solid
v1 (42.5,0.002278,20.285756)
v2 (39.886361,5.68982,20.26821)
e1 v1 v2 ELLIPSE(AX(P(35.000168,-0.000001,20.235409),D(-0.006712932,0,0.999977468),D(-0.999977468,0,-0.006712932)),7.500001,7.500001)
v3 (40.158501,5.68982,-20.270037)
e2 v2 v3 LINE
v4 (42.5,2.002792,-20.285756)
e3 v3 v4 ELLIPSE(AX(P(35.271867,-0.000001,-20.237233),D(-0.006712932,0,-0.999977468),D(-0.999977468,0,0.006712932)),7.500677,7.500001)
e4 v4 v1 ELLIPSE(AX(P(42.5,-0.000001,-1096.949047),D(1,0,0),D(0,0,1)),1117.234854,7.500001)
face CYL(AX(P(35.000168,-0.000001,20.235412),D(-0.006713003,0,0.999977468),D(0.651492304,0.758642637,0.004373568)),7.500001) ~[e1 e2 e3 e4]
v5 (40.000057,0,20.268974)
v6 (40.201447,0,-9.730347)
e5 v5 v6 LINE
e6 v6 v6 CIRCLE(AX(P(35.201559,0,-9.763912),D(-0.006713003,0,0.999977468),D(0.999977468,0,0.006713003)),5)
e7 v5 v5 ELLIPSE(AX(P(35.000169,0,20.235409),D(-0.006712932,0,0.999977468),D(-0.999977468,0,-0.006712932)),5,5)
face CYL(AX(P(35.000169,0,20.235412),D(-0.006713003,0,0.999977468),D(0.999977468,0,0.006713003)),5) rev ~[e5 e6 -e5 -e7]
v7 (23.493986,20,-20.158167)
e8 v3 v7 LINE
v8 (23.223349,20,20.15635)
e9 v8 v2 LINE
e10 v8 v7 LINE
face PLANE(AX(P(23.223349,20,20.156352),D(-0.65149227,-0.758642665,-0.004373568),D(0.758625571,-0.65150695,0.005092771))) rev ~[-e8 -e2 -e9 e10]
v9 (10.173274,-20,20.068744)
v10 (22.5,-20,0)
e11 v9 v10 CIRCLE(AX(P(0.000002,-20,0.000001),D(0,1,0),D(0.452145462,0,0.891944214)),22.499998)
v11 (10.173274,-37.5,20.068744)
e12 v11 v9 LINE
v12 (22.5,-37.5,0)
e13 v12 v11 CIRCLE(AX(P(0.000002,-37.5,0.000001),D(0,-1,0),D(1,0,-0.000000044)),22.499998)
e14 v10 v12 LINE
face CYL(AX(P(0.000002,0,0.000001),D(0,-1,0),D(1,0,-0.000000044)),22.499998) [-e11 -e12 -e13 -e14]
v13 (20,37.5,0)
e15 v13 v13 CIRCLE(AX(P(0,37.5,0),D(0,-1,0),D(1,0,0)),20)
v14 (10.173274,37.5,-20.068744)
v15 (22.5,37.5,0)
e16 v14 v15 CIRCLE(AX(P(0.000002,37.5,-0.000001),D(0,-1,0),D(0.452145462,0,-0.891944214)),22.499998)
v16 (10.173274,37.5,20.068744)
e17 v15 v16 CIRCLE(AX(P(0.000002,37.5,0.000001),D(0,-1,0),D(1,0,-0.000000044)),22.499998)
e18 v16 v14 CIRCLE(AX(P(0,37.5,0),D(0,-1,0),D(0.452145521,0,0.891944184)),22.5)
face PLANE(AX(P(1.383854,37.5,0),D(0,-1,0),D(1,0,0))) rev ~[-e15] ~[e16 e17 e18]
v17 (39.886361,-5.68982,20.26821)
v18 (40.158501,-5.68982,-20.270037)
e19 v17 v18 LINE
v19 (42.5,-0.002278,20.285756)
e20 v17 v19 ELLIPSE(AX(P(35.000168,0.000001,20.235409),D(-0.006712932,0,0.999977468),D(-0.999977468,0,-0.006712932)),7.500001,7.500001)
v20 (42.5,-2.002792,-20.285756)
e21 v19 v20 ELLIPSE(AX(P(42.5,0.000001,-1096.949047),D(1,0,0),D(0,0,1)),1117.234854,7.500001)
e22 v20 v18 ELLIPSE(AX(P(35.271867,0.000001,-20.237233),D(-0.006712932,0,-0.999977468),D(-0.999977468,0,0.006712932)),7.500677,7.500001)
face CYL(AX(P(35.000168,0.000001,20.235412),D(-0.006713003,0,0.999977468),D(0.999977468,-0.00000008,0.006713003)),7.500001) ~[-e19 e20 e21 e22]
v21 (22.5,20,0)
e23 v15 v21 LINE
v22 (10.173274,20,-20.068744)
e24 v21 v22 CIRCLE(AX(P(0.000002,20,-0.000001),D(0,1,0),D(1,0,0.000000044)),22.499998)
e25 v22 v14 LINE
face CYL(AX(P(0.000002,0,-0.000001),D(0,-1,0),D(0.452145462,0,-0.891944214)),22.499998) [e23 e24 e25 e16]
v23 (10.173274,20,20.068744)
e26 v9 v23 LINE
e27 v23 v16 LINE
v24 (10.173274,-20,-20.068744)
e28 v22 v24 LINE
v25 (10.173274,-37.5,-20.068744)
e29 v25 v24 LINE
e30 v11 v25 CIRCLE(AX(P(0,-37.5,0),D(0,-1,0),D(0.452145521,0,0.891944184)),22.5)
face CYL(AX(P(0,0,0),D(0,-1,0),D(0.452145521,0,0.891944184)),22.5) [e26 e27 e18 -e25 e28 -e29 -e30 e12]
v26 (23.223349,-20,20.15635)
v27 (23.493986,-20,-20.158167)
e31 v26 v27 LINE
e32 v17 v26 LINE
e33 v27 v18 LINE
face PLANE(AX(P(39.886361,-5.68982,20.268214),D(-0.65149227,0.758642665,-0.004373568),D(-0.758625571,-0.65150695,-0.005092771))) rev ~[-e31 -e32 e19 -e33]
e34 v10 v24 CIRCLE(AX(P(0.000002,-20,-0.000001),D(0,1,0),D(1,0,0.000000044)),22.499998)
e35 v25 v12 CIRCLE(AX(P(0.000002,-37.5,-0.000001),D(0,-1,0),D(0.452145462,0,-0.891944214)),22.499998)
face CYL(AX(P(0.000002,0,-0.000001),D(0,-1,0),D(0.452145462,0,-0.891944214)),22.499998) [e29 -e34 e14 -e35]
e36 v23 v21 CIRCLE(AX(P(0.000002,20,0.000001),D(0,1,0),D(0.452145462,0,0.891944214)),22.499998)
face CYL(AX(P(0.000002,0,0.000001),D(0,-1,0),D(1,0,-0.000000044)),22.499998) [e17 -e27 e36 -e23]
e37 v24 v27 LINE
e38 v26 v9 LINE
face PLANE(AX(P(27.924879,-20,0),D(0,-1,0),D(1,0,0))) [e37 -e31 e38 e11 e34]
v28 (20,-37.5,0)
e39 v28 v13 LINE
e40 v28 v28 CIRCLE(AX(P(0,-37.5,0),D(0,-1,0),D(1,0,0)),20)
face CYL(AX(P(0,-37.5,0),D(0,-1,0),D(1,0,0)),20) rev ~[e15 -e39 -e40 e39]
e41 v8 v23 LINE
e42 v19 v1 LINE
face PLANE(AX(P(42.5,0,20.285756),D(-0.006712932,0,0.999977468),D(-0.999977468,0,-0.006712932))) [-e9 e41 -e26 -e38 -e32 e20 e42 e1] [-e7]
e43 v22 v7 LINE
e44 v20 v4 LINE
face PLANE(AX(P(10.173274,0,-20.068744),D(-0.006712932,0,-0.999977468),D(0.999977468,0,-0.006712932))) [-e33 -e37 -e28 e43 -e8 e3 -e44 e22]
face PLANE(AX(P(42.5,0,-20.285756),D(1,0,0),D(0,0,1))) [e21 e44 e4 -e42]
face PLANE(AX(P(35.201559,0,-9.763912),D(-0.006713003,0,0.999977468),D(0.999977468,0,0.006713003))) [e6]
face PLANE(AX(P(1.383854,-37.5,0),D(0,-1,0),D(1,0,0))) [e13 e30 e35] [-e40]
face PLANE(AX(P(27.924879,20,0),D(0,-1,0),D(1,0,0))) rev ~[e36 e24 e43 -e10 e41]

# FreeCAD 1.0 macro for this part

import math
import FreeCAD as App
import Part
import Sketcher
from FreeCAD import Vector
Q = App.Units.Quantity

doc = App.newDocument("Part")
body = doc.addObject("PartDesign::Body", "Body")

# Sketch on XZ plane
sketch1 = body.newObject("Sketcher::SketchObject", "Sketch")
sketch1.AttachmentSupport = (doc.getObject("XZ_Plane"), [""])
sketch1.MapMode = "FlatFace"
sketch1.addGeometry(Part.ArcOfCircle(Part.Circle(Vector(0, 0, 0), Vector(0, 0, 1), 22), math.radians(-63), math.radians(0)), False)
sketch1.addGeometry(Part.ArcOfCircle(Part.Circle(Vector(0, 0, 0), Vector(0, 0, 1), 22), math.radians(0), math.radians(63)), False)
sketch1.addGeometry(Part.ArcOfCircle(Part.Circle(Vector(0, 0, 0), Vector(0, 0, 1), 22), math.radians(63), math.radians(297)), False)
sketch1.addConstraint(Sketcher.Constraint("Tangent", 0, 2, 1, 1))
sketch1.addConstraint(Sketcher.Constraint("Tangent", 1, 2, 2, 1))
sketch1.addConstraint(Sketcher.Constraint("Tangent", 2, 2, 0, 1))
sketch1.addConstraint(Sketcher.Constraint("Coincident", 0, 3, -1, 1))
sketch1.addConstraint(Sketcher.Constraint("PointOnObject", 0, 2, -1))
sketch1.addConstraint(Sketcher.Constraint("Vertical", 1, 2, 2, 2))
sketch1.addConstraint(Sketcher.Constraint("Radius", 2, Q("22.5 mm")))
sketch1.addConstraint(Sketcher.Constraint("DistanceX", 1, 3, 1, 2, Q("10.173272 mm")))
pad1 = body.newObject("PartDesign::Pad", "Pad")
pad1.Profile = sketch1
pad1.Length = 75
pad1.Midplane = True

# Sketch on XZ plane
sketch2 = body.newObject("Sketcher::SketchObject", "Sketch001")
sketch2.AttachmentSupport = (doc.getObject("XZ_Plane"), [""])
sketch2.MapMode = "FlatFace"
sketch2.addGeometry(Part.ArcOfCircle(Part.Circle(Vector(0, 0, 0), Vector(0, 0, 1), 22), math.radians(0), math.radians(63)), False)
sketch2.addGeometry(Part.ArcOfCircle(Part.Circle(Vector(0, 0, 0), Vector(0, 0, 1), 22), math.radians(-63), math.radians(0)), False)
sketch2.addGeometry(Part.LineSegment(Vector(10, -20, 0), Vector(42, -20, 0)), False)
sketch2.addGeometry(Part.LineSegment(Vector(42, -20, 0), Vector(42, 20, 0)), False)
sketch2.addGeometry(Part.LineSegment(Vector(42, 20, 0), Vector(10, 20, 0)), False)
sketch2.addConstraint(Sketcher.Constraint("Tangent", 0, 1, 1, 2))
sketch2.addConstraint(Sketcher.Constraint("Coincident", 1, 1, 2, 1))
sketch2.addConstraint(Sketcher.Constraint("Coincident", 2, 2, 3, 1))
sketch2.addConstraint(Sketcher.Constraint("Coincident", 3, 2, 4, 1))
sketch2.addConstraint(Sketcher.Constraint("Coincident", 4, 2, 0, 2))
sketch2.addConstraint(Sketcher.Constraint("Vertical", 3))
sketch2.addConstraint(Sketcher.Constraint("Coincident", 0, 3, -1, 1))
sketch2.addConstraint(Sketcher.Constraint("Equal", 0, 1))
sketch2.addConstraint(Sketcher.Constraint("PointOnObject", 0, 1, -1))
sketch2.addConstraint(Sketcher.Constraint("Vertical", 1, 1, 4, 2))
sketch2.addConstraint(Sketcher.Constraint("Equal", 2, 4))
sketch2.addConstraint(Sketcher.Constraint("DistanceX", 0, 1, 2, 2, Q("20 mm")))
sketch2.addConstraint(Sketcher.Constraint("DistanceX", -1, 1, 0, 1, Q("22.5 mm")))
sketch2.addConstraint(Sketcher.Constraint("DistanceY", 3, 1, 3, 2, Q("40.571512 mm")))
sketch2.addConstraint(Sketcher.Constraint("DistanceY", 1, 1, 3, 2, Q("40.3545 mm")))
pad2 = body.newObject("PartDesign::Pad", "Pad001")
pad2.Profile = sketch2
pad2.Length = 40
pad2.Midplane = True

# Sketch on an angled plane
sketch3 = body.newObject("Sketcher::SketchObject", "Sketch002")
sketch3.Placement = App.Placement(Vector(-0.134258, 0, 19.999549), App.Rotation(Vector(0.999977468, 0, 0.006713003), Vector(0, 1.000000001, 0), Vector(-0.006713003, 0, 0.999977468), "ZXY"))
sketch3.addGeometry(Part.ArcOfCircle(Part.Circle(Vector(35, 0, 0), Vector(0, 0, 1), 8), math.radians(0), math.radians(49)), False)
sketch3.addGeometry(Part.LineSegment(Vector(43, 0, 0), Vector(43, 20, 0)), False)
sketch3.addGeometry(Part.LineSegment(Vector(43, 20, 0), Vector(23, 20, 0)), False)
sketch3.addGeometry(Part.LineSegment(Vector(23, 20, 0), Vector(40, 6, 0)), False)
sketch3.addGeometry(Part.LineSegment(Vector(43, -20, 0), Vector(43, 0, 0)), False)
sketch3.addGeometry(Part.ArcOfCircle(Part.Circle(Vector(35, 0, 0), Vector(0, 0, 1), 8), math.radians(-49), math.radians(0)), False)
sketch3.addGeometry(Part.LineSegment(Vector(40, -6, 0), Vector(23, -20, 0)), False)
sketch3.addGeometry(Part.LineSegment(Vector(23, -20, 0), Vector(43, -20, 0)), False)
sketch3.addConstraint(Sketcher.Constraint("Tangent", 0, 1, 1, 1))
sketch3.addConstraint(Sketcher.Constraint("Coincident", 1, 2, 2, 1))
sketch3.addConstraint(Sketcher.Constraint("Coincident", 2, 2, 3, 1))
sketch3.addConstraint(Sketcher.Constraint("Tangent", 3, 2, 0, 2))
sketch3.addConstraint(Sketcher.Constraint("Tangent", 4, 2, 5, 2))
sketch3.addConstraint(Sketcher.Constraint("Tangent", 5, 1, 6, 1))
sketch3.addConstraint(Sketcher.Constraint("Coincident", 6, 2, 7, 1))
sketch3.addConstraint(Sketcher.Constraint("Coincident", 7, 2, 4, 1))
sketch3.addConstraint(Sketcher.Constraint("Vertical", 1))
sketch3.addConstraint(Sketcher.Constraint("Horizontal", 2))
sketch3.addConstraint(Sketcher.Constraint("Vertical", 4))
sketch3.addConstraint(Sketcher.Constraint("Horizontal", 7))
sketch3.addConstraint(Sketcher.Constraint("Coincident", 5, 3, 0, 3))
sketch3.addConstraint(Sketcher.Constraint("Equal", 0, 5))
sketch3.addConstraint(Sketcher.Constraint("Symmetric", 3, 2, 5, 1, -1))
sketch3.addConstraint(Sketcher.Constraint("Vertical", 2, 2, 6, 2))
sketch3.addConstraint(Sketcher.Constraint("Radius", 0, Q("7.500001 mm")))
sketch3.addConstraint(Sketcher.Constraint("DistanceY", 1, 1, 1, 2, Q("20 mm")))
sketch3.addConstraint(Sketcher.Constraint("DistanceX", 3, 2, 1, 2, Q("2.613698 mm")))
sketch3.addConstraint(Sketcher.Constraint("DistanceX", -1, 1, 0, 1, Q("42.635219 mm")))
pocket1 = body.newObject("PartDesign::Pocket", "Pocket")
pocket1.Profile = sketch3
pocket1.Length = 70

# Sketch on an angled plane
sketch4 = body.newObject("Sketcher::SketchObject", "Sketch003")
sketch4.Placement = App.Placement(Vector(-0.134258, 0, 19.999549), App.Rotation(Vector(0.999977468, 0, 0.006713003), Vector(0, 1.000000001, 0), Vector(-0.006713003, 0, 0.999977468), "ZXY"))
sketch4.addGeometry(Part.Circle(Vector(35, 0, 0), Vector(0, 0, 1), 5), False)
sketch4.addConstraint(Sketcher.Constraint("PointOnObject", 0, 3, -1))
sketch4.addConstraint(Sketcher.Constraint("Diameter", 0, Q("10 mm")))
sketch4.addConstraint(Sketcher.Constraint("DistanceX", -1, 1, 0, 3, Q("35.135219 mm")))
pocket2 = body.newObject("PartDesign::Pocket", "Pocket001")
pocket2.Profile = sketch4
pocket2.Length = 30

# Sketch on XZ plane
sketch5 = body.newObject("Sketcher::SketchObject", "Sketch004")
sketch5.AttachmentSupport = (doc.getObject("XZ_Plane"), [""])
sketch5.MapMode = "FlatFace"
sketch5.AttachmentOffset = App.Placement(Vector(0, 0, 37.5), App.Rotation())
sketch5.addGeometry(Part.Circle(Vector(0, 0, 0), Vector(0, 0, 1), 20), False)
sketch5.addConstraint(Sketcher.Constraint("Coincident", 0, 3, -1, 1))
sketch5.addConstraint(Sketcher.Constraint("Diameter", 0, Q("40 mm")))
pocket3 = body.newObject("PartDesign::Pocket", "Pocket002")
pocket3.Profile = sketch5
pocket3.Length = 100

doc.recompute()
